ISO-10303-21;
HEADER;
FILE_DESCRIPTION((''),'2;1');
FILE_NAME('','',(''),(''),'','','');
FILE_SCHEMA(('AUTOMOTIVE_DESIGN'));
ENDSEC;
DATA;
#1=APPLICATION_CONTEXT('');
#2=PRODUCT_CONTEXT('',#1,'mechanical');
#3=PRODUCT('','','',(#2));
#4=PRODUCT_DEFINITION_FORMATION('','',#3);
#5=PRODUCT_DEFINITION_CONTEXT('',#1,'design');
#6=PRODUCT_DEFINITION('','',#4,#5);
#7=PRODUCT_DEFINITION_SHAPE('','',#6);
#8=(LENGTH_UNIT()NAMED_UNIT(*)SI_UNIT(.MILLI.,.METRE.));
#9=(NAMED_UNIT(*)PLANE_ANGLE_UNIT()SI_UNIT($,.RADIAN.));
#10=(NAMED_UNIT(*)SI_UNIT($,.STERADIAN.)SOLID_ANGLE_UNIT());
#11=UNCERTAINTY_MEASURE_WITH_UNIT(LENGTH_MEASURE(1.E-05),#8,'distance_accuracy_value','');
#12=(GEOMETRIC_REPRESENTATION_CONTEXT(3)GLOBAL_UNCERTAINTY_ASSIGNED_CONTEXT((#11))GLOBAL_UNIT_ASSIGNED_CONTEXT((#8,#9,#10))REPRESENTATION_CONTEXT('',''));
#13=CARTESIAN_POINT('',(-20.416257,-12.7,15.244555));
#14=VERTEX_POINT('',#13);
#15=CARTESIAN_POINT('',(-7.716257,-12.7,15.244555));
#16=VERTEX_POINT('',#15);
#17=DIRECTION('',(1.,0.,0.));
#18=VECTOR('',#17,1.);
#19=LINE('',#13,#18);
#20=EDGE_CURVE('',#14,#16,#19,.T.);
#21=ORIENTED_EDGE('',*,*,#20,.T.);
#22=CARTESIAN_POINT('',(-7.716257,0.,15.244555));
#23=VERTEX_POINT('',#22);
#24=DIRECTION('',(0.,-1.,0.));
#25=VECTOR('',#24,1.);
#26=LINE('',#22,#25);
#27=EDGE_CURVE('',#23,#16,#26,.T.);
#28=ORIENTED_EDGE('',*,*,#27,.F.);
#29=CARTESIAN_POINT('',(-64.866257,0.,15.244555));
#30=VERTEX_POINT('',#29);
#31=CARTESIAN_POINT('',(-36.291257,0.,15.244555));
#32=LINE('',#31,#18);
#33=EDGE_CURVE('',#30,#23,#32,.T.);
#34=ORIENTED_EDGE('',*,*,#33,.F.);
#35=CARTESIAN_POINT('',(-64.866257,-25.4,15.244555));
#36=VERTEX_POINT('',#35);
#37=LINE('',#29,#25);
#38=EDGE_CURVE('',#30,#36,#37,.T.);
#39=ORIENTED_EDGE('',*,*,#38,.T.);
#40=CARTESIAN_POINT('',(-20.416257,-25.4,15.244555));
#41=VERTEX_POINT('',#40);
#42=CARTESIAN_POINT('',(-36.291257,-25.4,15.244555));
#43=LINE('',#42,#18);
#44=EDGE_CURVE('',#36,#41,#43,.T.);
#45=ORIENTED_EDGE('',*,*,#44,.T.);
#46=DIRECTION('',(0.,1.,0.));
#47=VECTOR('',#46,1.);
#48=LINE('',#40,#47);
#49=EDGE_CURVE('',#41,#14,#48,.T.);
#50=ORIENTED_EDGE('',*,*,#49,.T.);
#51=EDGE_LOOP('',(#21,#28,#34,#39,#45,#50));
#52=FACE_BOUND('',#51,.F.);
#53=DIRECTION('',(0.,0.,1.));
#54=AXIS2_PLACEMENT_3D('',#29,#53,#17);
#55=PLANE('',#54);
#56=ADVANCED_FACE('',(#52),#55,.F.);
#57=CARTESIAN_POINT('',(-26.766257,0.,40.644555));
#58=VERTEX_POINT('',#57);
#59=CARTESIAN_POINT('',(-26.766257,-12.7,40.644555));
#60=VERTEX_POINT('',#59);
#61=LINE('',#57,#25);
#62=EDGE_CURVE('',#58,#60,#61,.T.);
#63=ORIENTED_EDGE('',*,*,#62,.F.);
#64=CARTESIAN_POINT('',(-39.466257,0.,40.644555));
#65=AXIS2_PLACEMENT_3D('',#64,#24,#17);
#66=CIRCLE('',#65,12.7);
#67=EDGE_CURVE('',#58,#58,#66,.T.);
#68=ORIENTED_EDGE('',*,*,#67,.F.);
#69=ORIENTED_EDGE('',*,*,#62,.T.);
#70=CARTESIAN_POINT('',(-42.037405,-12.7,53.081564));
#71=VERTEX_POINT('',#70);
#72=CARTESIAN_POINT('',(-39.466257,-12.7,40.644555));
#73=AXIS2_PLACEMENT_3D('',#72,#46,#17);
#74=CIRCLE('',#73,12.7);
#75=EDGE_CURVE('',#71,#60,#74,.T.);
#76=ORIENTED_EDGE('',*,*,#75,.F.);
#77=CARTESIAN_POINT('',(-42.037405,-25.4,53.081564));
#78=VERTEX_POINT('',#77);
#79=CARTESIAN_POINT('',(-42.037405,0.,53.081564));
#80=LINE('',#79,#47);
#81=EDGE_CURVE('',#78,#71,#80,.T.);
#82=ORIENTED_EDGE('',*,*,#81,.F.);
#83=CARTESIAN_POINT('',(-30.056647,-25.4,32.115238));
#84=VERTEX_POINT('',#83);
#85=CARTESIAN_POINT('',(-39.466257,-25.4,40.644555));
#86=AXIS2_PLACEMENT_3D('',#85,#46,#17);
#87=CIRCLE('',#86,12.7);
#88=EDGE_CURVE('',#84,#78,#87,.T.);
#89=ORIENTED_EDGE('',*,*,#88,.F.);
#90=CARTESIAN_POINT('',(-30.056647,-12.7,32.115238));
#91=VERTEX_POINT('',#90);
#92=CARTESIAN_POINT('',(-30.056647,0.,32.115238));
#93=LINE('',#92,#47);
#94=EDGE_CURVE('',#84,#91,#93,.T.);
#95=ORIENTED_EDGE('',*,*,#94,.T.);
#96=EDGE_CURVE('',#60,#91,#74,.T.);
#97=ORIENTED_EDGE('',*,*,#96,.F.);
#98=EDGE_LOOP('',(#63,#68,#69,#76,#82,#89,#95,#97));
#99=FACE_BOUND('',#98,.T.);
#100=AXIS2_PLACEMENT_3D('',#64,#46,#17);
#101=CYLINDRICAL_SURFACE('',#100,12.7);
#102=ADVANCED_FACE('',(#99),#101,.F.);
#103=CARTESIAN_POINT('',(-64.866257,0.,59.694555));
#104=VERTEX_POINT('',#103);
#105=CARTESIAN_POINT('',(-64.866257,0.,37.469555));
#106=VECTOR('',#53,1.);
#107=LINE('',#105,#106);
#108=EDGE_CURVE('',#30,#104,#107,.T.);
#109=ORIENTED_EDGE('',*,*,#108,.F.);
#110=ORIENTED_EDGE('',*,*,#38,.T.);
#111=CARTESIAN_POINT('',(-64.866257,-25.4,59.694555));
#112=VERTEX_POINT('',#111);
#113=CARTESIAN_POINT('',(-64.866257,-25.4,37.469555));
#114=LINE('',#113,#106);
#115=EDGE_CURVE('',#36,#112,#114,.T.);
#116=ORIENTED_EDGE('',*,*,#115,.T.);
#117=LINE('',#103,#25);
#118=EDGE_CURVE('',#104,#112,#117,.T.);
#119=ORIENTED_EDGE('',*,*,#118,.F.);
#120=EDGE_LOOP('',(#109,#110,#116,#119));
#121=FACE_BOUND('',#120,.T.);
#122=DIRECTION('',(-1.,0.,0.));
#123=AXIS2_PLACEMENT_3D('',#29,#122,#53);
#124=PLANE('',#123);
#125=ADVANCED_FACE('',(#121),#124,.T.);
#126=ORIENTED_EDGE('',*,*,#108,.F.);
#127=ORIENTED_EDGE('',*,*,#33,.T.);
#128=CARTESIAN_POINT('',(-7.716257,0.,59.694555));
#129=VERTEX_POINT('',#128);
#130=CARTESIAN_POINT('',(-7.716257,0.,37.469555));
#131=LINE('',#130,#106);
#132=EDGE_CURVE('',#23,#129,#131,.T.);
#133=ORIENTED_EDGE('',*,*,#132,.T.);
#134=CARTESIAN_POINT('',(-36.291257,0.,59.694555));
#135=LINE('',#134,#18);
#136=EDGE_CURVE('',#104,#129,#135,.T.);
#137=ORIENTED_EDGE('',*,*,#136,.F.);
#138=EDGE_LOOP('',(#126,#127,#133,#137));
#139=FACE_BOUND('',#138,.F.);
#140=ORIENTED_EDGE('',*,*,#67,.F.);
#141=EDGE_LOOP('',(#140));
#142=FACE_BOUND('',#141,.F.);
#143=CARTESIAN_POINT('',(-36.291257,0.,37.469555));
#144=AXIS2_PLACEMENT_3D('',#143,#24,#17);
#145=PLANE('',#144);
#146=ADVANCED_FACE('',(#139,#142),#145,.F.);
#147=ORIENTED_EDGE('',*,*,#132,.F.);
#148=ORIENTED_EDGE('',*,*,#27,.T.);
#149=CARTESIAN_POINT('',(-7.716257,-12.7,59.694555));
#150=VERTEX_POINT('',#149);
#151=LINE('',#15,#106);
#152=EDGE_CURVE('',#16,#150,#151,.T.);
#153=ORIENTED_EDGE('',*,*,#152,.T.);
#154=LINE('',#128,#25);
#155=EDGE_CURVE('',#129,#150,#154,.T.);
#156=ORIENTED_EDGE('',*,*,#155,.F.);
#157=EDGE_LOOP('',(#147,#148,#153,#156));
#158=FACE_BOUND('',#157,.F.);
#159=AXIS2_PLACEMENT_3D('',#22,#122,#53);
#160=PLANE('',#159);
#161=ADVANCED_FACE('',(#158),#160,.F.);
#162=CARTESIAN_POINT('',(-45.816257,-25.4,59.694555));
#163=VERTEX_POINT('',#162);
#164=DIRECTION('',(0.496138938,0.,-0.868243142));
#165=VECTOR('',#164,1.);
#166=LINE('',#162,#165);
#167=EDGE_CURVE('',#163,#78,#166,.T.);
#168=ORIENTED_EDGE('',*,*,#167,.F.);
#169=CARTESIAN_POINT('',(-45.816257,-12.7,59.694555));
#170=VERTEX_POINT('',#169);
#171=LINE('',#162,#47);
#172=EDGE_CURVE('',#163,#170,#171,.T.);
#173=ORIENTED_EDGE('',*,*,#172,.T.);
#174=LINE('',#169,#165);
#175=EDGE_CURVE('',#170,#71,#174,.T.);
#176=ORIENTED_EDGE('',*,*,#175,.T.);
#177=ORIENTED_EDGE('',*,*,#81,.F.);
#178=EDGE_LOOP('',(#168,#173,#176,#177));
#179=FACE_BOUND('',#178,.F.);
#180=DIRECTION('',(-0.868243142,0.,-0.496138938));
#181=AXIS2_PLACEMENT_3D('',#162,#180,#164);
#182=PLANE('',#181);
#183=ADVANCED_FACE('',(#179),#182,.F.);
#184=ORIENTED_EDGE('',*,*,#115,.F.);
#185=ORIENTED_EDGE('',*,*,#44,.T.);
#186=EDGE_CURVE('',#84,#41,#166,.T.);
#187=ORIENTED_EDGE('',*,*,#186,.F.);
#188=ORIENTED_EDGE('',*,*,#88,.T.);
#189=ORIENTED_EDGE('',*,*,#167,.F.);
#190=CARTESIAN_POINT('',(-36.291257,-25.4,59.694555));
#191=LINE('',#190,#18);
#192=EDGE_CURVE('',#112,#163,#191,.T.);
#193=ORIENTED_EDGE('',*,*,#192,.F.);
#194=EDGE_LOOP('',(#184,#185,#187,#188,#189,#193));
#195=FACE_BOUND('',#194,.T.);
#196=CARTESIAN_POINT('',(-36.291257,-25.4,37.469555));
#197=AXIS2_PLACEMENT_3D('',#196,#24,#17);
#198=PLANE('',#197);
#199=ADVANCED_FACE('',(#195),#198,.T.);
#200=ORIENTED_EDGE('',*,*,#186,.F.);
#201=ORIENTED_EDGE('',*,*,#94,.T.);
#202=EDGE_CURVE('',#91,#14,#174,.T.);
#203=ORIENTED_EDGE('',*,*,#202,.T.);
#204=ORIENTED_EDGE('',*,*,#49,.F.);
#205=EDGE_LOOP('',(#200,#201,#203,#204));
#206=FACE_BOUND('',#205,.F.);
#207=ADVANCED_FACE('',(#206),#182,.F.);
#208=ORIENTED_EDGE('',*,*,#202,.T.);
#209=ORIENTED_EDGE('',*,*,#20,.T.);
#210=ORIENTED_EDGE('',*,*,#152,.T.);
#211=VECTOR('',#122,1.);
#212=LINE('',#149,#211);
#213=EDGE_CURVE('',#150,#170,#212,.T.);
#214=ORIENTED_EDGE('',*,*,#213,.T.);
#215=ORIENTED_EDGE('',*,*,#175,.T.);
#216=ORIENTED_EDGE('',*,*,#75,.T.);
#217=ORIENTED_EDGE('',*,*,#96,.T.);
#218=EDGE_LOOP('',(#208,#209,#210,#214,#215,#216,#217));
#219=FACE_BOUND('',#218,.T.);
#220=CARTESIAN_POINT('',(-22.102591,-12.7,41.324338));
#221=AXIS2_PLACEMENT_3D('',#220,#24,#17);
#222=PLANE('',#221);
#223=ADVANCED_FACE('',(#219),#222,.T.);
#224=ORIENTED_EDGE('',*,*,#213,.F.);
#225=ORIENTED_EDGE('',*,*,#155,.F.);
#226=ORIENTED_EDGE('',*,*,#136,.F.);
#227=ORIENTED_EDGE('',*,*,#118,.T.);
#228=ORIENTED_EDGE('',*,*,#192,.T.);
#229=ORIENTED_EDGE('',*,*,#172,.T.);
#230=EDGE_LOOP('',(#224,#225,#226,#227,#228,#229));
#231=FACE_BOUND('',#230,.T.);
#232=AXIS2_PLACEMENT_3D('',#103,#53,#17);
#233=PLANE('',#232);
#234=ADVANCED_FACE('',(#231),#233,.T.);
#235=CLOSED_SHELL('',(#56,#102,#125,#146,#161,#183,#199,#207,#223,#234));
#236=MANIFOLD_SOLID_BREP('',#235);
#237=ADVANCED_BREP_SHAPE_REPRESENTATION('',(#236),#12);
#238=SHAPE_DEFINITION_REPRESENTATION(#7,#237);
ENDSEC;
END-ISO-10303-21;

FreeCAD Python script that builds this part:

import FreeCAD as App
import Part
import Sketcher
Q = App.Units.Quantity


def add_polygon(sketch, points):
    """Adds a closed chain of lines whose ends are joined by coincident constraints."""
    first, n = sketch.GeometryCount, len(points)
    for a, b in zip(points, points[1:] + points[:1]):
        sketch.addGeometry(Part.LineSegment(App.Vector(*a, 0), App.Vector(*b, 0)), False)
    for i in range(n):
        sketch.addConstraint(Sketcher.Constraint("Coincident", first + i, 2, first + (i + 1) % n, 1))

doc = App.newDocument("Part")
body = doc.addObject("PartDesign::Body", "Body")

# Sketch on XZ plane
sketch1 = body.newObject("Sketcher::SketchObject", "Sketch")
sketch1.AttachmentSupport = (doc.getObject("XZ_Plane"), [""])
sketch1.MapMode = "FlatFace"
add_polygon(sketch1, [(-65, 60), (-65, 15), (-8, 15), (-8, 60)])  # lines 0-3
sketch1.addConstraint([
    Sketcher.Constraint("Vertical", 0),
    Sketcher.Constraint("Horizontal", 1),
    Sketcher.Constraint("Vertical", 2),
    Sketcher.Constraint("Horizontal", 3),
    Sketcher.Constraint("DistanceX", 1, 1, 1, 2, Q("2.25 in")),
    Sketcher.Constraint("DistanceY", 0, 2, 0, 1, Q("1.75 in")),
    Sketcher.Constraint("DistanceX", 0, 2, -1, 1, Q("64.866257 mm")),
    Sketcher.Constraint("DistanceY", -1, 1, 0, 2, Q("15.244555 mm")),
])
pad1 = body.newObject("PartDesign::Pad", "Pad")
pad1.Profile = sketch1
pad1.Length = Q("1 in")

# Sketch on XZ plane
sketch2 = body.newObject("Sketcher::SketchObject", "Sketch001")
sketch2.AttachmentSupport = (doc.getObject("XZ_Plane"), [""])
sketch2.MapMode = "FlatFace"
sketch2.AttachmentOffset = App.Placement(App.Vector(0, 0, 1 * 25.4), App.Rotation())
add_polygon(sketch2, [(-8, 60), (-46, 60), (-20, 15), (-8, 15)])  # lines 0-3
sketch2.addConstraint([
    Sketcher.Constraint("Horizontal", 0),
    Sketcher.Constraint("Horizontal", 2),
    Sketcher.Constraint("Vertical", 3),
    Sketcher.Constraint("DistanceX", 0, 2, 0, 1, Q("1.5 in")),
    Sketcher.Constraint("DistanceX", 2, 1, 2, 2, Q("0.5 in")),
    Sketcher.Constraint("DistanceY", 3, 1, 3, 2, Q("1.75 in")),
    Sketcher.Constraint("DistanceX", 0, 2, -1, 1, Q("45.816257 mm")),
    Sketcher.Constraint("DistanceY", -1, 1, 0, 2, Q("59.694555 mm")),
])
pocket1 = body.newObject("PartDesign::Pocket", "Pocket")
pocket1.Profile = sketch2
pocket1.Length = Q("0.5 in")

# Sketch on XZ plane
sketch3 = body.newObject("Sketcher::SketchObject", "Sketch002")
sketch3.AttachmentSupport = (doc.getObject("XZ_Plane"), [""])
sketch3.MapMode = "FlatFace"
sketch3.addGeometry(Part.Circle(App.Vector(-39, 41, 0), App.Vector(0, 0, 1), 13), False)
sketch3.addConstraint([
    Sketcher.Constraint("Diameter", 0, Q("1 in")),
    Sketcher.Constraint("DistanceX", 0, 3, -1, 1, Q("39.466257 mm")),
    Sketcher.Constraint("DistanceY", -1, 1, 0, 3, Q("40.644555 mm")),
])
pocket2 = body.newObject("PartDesign::Pocket", "Pocket001")
pocket2.Profile = sketch3
pocket2.Type = "ThroughAll"
pocket2.Reversed = True

doc.recompute()
